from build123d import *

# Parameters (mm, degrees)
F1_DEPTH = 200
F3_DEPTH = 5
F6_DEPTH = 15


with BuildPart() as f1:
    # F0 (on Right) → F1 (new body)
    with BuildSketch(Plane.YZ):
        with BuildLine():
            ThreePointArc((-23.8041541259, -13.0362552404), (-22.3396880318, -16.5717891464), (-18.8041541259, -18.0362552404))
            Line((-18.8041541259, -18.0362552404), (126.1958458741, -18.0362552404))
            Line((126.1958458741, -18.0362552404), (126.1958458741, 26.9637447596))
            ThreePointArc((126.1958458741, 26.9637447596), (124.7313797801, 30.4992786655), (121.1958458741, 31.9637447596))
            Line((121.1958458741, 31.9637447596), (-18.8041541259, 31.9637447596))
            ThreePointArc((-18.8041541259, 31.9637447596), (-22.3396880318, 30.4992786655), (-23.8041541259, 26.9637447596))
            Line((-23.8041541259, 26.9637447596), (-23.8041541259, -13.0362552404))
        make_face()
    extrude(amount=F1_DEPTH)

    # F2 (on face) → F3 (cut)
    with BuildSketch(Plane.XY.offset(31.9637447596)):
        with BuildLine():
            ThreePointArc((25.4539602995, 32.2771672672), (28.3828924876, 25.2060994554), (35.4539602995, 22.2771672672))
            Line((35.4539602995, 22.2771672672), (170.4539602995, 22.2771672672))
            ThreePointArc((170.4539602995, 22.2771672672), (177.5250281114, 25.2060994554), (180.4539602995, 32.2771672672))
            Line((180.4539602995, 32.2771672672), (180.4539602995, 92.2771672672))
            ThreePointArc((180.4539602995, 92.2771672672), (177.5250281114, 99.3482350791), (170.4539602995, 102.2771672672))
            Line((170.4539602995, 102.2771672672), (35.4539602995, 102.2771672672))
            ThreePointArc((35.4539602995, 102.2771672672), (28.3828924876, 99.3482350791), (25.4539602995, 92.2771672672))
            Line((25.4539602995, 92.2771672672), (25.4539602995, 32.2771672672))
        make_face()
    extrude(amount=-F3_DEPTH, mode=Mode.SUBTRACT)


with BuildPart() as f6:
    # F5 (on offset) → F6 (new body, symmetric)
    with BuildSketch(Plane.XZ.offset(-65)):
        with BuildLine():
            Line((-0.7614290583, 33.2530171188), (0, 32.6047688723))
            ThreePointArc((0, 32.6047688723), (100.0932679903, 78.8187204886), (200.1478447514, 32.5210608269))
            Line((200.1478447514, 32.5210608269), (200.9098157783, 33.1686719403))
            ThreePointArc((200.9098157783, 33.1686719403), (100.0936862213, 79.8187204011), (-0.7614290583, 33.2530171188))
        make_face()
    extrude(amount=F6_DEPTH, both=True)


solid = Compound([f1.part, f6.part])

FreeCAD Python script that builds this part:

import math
import FreeCAD as App
import Part
import Sketcher

doc = App.newDocument("Part")
body = doc.addObject("PartDesign::Body", "Body")

sketch1 = doc.addObject("Sketcher::SketchObject", "Sketch")
body.addObject(sketch1)
sketch1.AttachmentSupport = (doc.YZ_Plane, [""])
sketch1.MapMode = "FlatFace"
sketch1.addGeometry([
    Part.ArcOfCircle(Part.Circle(App.Vector(-19, -13, 0), App.Vector(0, 0, 1), 5), math.radians(180), math.radians(270)),
    Part.LineSegment(App.Vector(-19, -18, 0), App.Vector(126, -18, 0)),
    Part.LineSegment(App.Vector(126, -18, 0), App.Vector(126, 27, 0)),
    Part.ArcOfCircle(Part.Circle(App.Vector(121, 27, 0), App.Vector(0, 0, 1), 5), math.radians(0), math.radians(90)),
    Part.LineSegment(App.Vector(121, 32, 0), App.Vector(-19, 32, 0)),
    Part.ArcOfCircle(Part.Circle(App.Vector(-19, 27, 0), App.Vector(0, 0, 1), 5), math.radians(90), math.radians(180)),
    Part.LineSegment(App.Vector(-24, 27, 0), App.Vector(-24, -13, 0)),
], False)
sketch1.addConstraint([
    Sketcher.Constraint("Tangent", 0, 2, 1, 1),
    Sketcher.Constraint("Coincident", 1, 2, 2, 1),
    Sketcher.Constraint("Tangent", 2, 2, 3, 1),
    Sketcher.Constraint("Tangent", 3, 2, 4, 1),
    Sketcher.Constraint("Tangent", 4, 2, 5, 1),
    Sketcher.Constraint("Tangent", 5, 2, 6, 1),
    Sketcher.Constraint("Tangent", 6, 2, 0, 1),
    Sketcher.Constraint("Horizontal", 1),
    Sketcher.Constraint("Vertical", 2),
    Sketcher.Constraint("Horizontal", 4),
    Sketcher.Constraint("Vertical", 6),
    Sketcher.Constraint("Equal", 0, 3),
    Sketcher.Constraint("Equal", 3, 5),
    Sketcher.Constraint("Radius", 0, 5.0),
    Sketcher.Constraint("DistanceX", 1, 1, 1, 2, 145.0),
    Sketcher.Constraint("DistanceY", 2, 1, 2, 2, 45.0),
    Sketcher.Constraint("DistanceX", 0, 3, -1, 1, 18.804154),
    Sketcher.Constraint("DistanceY", 0, 3, -1, 1, 13.036255),
])
pad1 = doc.addObject("PartDesign::Pad", "Pad")
body.addObject(pad1)
pad1.Profile = sketch1
pad1.Length = 200

sketch2 = doc.addObject("Sketcher::SketchObject", "Sketch001")
body.addObject(sketch2)
sketch2.AttachmentSupport = (doc.XY_Plane, [""])
sketch2.MapMode = "FlatFace"
sketch2.AttachmentOffset = App.Placement(App.Vector(0, 0, 31.963745), App.Rotation())
sketch2.addGeometry([
    Part.ArcOfCircle(Part.Circle(App.Vector(35, 32, 0), App.Vector(0, 0, 1), 10), math.radians(180), math.radians(270)),
    Part.LineSegment(App.Vector(35, 22, 0), App.Vector(170, 22, 0)),
    Part.ArcOfCircle(Part.Circle(App.Vector(170, 32, 0), App.Vector(0, 0, 1), 10), math.radians(-90), math.radians(0)),
    Part.LineSegment(App.Vector(180, 32, 0), App.Vector(180, 92, 0)),
    Part.ArcOfCircle(Part.Circle(App.Vector(170, 92, 0), App.Vector(0, 0, 1), 10), math.radians(0), math.radians(90)),
    Part.LineSegment(App.Vector(170, 102, 0), App.Vector(35, 102, 0)),
    Part.ArcOfCircle(Part.Circle(App.Vector(35, 92, 0), App.Vector(0, 0, 1), 10), math.radians(90), math.radians(180)),
    Part.LineSegment(App.Vector(25, 92, 0), App.Vector(25, 32, 0)),
], False)
sketch2.addConstraint([
    Sketcher.Constraint("Tangent", 0, 2, 1, 1),
    Sketcher.Constraint("Tangent", 1, 2, 2, 1),
    Sketcher.Constraint("Tangent", 2, 2, 3, 1),
    Sketcher.Constraint("Tangent", 3, 2, 4, 1),
    Sketcher.Constraint("Tangent", 4, 2, 5, 1),
    Sketcher.Constraint("Tangent", 5, 2, 6, 1),
    Sketcher.Constraint("Tangent", 6, 2, 7, 1),
    Sketcher.Constraint("Tangent", 7, 2, 0, 1),
    Sketcher.Constraint("Horizontal", 1),
    Sketcher.Constraint("Vertical", 3),
    Sketcher.Constraint("Horizontal", 5),
    Sketcher.Constraint("Vertical", 7),
    Sketcher.Constraint("Equal", 0, 2),
    Sketcher.Constraint("Equal", 2, 4),
    Sketcher.Constraint("Equal", 4, 6),
    Sketcher.Constraint("Radius", 0, 10.0),
    Sketcher.Constraint("DistanceX", 1, 1, 1, 2, 135.0),
    Sketcher.Constraint("DistanceY", 3, 1, 3, 2, 60.0),
    Sketcher.Constraint("DistanceX", -1, 1, 0, 3, 35.45396),
    Sketcher.Constraint("DistanceY", -1, 1, 0, 3, 32.277167),
])
pocket1 = doc.addObject("PartDesign::Pocket", "Pocket")
body.addObject(pocket1)
pocket1.Profile = sketch2
pocket1.Length = 5
body2 = doc.addObject("PartDesign::Body", "Body001")

sketch3 = doc.addObject("Sketcher::SketchObject", "Sketch002")
body2.addObject(sketch3)
sketch3.AttachmentSupport = (doc.getObject("XZ_Plane001"), [""])
sketch3.MapMode = "FlatFace"
sketch3.AttachmentOffset = App.Placement(App.Vector(0, 0, -65), App.Rotation())
sketch3.addGeometry([
    Part.LineSegment(App.Vector(-0.8, 33.3, 0), App.Vector(0, 32.6, 0)),
    Part.ArcOfCircle(Part.Circle(App.Vector(100, -52.6, 0), App.Vector(0, 0, 1), 131.4), math.radians(40), math.radians(140)),
    Part.LineSegment(App.Vector(200.1, 32.5, 0), App.Vector(200.9, 33.2, 0)),
    Part.ArcOfCircle(Part.Circle(App.Vector(100, -52.6, 0), App.Vector(0, 0, 1), 132.4), math.radians(40), math.radians(140)),
], False)
sketch3.addConstraint([
    Sketcher.Constraint("Coincident", 0, 2, 1, 2),
    Sketcher.Constraint("Coincident", 1, 1, 2, 1),
    Sketcher.Constraint("Coincident", 2, 2, 3, 1),
    Sketcher.Constraint("Coincident", 3, 2, 0, 1),
    Sketcher.Constraint("Coincident", 3, 3, 1, 3),
    Sketcher.Constraint("PointOnObject", 0, 2, -2),
    Sketcher.Constraint("Distance", 0, 1.0),
    Sketcher.Constraint("Radius", 1, 131.382325),
    Sketcher.Constraint("DistanceX", -1, 1, 1, 3, 100.03832),
    Sketcher.Constraint("DistanceY", -1, 1, 0, 2, 32.604769),
    Sketcher.Constraint("DistanceY", -1, 1, 1, 1, 32.521061),
    Sketcher.Constraint("DistanceY", -1, 1, 2, 2, 33.168672),
    Sketcher.Constraint("DistanceX", 3, 2, -1, 1, 0.761429),
])
pad2 = doc.addObject("PartDesign::Pad", "Pad001")
body2.addObject(pad2)
pad2.Profile = sketch3
pad2.Length = 30
pad2.Midplane = True

doc.recompute()
